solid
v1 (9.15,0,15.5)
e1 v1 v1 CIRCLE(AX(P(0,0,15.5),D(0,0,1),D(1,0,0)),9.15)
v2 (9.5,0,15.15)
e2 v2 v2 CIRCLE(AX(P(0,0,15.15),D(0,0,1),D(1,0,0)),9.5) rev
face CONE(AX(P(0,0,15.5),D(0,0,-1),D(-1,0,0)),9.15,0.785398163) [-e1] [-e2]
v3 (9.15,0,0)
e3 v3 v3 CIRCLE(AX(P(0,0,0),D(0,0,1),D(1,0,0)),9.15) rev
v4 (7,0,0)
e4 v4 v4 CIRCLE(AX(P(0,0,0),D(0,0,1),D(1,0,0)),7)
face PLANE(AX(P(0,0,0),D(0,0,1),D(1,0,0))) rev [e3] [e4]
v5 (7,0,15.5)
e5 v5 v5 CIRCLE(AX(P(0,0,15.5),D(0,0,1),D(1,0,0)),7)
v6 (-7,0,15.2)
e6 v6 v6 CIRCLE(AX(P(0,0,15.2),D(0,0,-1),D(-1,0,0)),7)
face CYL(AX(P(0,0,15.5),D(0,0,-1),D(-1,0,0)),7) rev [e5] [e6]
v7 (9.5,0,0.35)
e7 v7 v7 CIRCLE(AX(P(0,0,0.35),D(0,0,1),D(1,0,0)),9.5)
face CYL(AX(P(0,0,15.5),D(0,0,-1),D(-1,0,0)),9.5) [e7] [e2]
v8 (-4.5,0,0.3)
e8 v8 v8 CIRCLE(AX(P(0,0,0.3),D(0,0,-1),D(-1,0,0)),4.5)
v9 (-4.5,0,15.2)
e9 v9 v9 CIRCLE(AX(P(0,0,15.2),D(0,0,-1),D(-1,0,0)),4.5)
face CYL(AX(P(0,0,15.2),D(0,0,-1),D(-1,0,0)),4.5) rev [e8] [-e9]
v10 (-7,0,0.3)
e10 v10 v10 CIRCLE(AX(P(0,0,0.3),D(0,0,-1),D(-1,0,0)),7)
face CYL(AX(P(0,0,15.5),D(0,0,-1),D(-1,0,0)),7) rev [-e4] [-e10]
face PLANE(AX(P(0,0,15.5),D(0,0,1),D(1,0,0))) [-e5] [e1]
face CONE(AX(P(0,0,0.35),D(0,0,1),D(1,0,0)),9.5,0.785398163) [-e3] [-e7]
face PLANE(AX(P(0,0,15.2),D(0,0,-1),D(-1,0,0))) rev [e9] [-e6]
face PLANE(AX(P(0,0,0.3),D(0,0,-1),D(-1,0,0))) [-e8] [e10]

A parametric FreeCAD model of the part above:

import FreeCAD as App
import Part
import Sketcher


def edges_at(feature, points):
    """Names of the edges that pass closest to the given points."""
    edges = feature.Shape.Edges
    near = lambda p: min(range(len(edges)), key=lambda i: edges[i].distToShape(Part.Vertex(*p))[0])
    return sorted({f"Edge{near(p) + 1}" for p in points})

doc = App.newDocument("Part")
body = doc.addObject("PartDesign::Body", "Body")

sketch1 = body.newObject("Sketcher::SketchObject", "Sketch")
sketch1.AttachmentSupport = (doc.getObject("XY_Plane"), [""])
sketch1.MapMode = "FlatFace"
sketch1.addGeometry([
    Part.Circle(App.Vector(0, 0, 0), App.Vector(0, 0, 1), 9.5),
    Part.Circle(App.Vector(0, 0, 0), App.Vector(0, 0, 1), 7),
], False)
sketch1.addConstraint([
    Sketcher.Constraint("Coincident", 0, 3, -1, 1),
    Sketcher.Constraint("Coincident", 1, 3, -1, 1),
    Sketcher.Constraint("Diameter", 0, 19.0),
    Sketcher.Constraint("Diameter", 1, 14.0),
])
pad1 = body.newObject("PartDesign::Pad", "Pad")
pad1.Profile = sketch1
pad1.Length = 15.5

sketch2 = body.newObject("Sketcher::SketchObject", "Sketch001")
sketch2.AttachmentSupport = (doc.getObject("XY_Plane"), [""])
sketch2.MapMode = "FlatFace"
sketch2.AttachmentOffset = App.Placement(App.Vector(0, 0, 0.3), App.Rotation())
sketch2.addGeometry([
    Part.Circle(App.Vector(0, 0, 0), App.Vector(0, 0, 1), 7),
    Part.Circle(App.Vector(0, 0, 0), App.Vector(0, 0, 1), 4.5),
], False)
sketch2.addConstraint([
    Sketcher.Constraint("Coincident", 0, 3, -1, 1),
    Sketcher.Constraint("Coincident", 1, 3, -1, 1),
    Sketcher.Constraint("Diameter", 0, 14.0),
    Sketcher.Constraint("Diameter", 1, 9.0),
])
pad2 = body.newObject("PartDesign::Pad", "Pad001")
pad2.Profile = sketch2
pad2.Length = 14.9
doc.recompute()

chamfer = body.newObject("PartDesign::Chamfer", "Chamfer")
chamfer.Base = (pad2, edges_at(pad2, [(-9.5, 0, 0), (-9.5, 0, 15.5)]))
chamfer.Size = 0.35

doc.recompute()
